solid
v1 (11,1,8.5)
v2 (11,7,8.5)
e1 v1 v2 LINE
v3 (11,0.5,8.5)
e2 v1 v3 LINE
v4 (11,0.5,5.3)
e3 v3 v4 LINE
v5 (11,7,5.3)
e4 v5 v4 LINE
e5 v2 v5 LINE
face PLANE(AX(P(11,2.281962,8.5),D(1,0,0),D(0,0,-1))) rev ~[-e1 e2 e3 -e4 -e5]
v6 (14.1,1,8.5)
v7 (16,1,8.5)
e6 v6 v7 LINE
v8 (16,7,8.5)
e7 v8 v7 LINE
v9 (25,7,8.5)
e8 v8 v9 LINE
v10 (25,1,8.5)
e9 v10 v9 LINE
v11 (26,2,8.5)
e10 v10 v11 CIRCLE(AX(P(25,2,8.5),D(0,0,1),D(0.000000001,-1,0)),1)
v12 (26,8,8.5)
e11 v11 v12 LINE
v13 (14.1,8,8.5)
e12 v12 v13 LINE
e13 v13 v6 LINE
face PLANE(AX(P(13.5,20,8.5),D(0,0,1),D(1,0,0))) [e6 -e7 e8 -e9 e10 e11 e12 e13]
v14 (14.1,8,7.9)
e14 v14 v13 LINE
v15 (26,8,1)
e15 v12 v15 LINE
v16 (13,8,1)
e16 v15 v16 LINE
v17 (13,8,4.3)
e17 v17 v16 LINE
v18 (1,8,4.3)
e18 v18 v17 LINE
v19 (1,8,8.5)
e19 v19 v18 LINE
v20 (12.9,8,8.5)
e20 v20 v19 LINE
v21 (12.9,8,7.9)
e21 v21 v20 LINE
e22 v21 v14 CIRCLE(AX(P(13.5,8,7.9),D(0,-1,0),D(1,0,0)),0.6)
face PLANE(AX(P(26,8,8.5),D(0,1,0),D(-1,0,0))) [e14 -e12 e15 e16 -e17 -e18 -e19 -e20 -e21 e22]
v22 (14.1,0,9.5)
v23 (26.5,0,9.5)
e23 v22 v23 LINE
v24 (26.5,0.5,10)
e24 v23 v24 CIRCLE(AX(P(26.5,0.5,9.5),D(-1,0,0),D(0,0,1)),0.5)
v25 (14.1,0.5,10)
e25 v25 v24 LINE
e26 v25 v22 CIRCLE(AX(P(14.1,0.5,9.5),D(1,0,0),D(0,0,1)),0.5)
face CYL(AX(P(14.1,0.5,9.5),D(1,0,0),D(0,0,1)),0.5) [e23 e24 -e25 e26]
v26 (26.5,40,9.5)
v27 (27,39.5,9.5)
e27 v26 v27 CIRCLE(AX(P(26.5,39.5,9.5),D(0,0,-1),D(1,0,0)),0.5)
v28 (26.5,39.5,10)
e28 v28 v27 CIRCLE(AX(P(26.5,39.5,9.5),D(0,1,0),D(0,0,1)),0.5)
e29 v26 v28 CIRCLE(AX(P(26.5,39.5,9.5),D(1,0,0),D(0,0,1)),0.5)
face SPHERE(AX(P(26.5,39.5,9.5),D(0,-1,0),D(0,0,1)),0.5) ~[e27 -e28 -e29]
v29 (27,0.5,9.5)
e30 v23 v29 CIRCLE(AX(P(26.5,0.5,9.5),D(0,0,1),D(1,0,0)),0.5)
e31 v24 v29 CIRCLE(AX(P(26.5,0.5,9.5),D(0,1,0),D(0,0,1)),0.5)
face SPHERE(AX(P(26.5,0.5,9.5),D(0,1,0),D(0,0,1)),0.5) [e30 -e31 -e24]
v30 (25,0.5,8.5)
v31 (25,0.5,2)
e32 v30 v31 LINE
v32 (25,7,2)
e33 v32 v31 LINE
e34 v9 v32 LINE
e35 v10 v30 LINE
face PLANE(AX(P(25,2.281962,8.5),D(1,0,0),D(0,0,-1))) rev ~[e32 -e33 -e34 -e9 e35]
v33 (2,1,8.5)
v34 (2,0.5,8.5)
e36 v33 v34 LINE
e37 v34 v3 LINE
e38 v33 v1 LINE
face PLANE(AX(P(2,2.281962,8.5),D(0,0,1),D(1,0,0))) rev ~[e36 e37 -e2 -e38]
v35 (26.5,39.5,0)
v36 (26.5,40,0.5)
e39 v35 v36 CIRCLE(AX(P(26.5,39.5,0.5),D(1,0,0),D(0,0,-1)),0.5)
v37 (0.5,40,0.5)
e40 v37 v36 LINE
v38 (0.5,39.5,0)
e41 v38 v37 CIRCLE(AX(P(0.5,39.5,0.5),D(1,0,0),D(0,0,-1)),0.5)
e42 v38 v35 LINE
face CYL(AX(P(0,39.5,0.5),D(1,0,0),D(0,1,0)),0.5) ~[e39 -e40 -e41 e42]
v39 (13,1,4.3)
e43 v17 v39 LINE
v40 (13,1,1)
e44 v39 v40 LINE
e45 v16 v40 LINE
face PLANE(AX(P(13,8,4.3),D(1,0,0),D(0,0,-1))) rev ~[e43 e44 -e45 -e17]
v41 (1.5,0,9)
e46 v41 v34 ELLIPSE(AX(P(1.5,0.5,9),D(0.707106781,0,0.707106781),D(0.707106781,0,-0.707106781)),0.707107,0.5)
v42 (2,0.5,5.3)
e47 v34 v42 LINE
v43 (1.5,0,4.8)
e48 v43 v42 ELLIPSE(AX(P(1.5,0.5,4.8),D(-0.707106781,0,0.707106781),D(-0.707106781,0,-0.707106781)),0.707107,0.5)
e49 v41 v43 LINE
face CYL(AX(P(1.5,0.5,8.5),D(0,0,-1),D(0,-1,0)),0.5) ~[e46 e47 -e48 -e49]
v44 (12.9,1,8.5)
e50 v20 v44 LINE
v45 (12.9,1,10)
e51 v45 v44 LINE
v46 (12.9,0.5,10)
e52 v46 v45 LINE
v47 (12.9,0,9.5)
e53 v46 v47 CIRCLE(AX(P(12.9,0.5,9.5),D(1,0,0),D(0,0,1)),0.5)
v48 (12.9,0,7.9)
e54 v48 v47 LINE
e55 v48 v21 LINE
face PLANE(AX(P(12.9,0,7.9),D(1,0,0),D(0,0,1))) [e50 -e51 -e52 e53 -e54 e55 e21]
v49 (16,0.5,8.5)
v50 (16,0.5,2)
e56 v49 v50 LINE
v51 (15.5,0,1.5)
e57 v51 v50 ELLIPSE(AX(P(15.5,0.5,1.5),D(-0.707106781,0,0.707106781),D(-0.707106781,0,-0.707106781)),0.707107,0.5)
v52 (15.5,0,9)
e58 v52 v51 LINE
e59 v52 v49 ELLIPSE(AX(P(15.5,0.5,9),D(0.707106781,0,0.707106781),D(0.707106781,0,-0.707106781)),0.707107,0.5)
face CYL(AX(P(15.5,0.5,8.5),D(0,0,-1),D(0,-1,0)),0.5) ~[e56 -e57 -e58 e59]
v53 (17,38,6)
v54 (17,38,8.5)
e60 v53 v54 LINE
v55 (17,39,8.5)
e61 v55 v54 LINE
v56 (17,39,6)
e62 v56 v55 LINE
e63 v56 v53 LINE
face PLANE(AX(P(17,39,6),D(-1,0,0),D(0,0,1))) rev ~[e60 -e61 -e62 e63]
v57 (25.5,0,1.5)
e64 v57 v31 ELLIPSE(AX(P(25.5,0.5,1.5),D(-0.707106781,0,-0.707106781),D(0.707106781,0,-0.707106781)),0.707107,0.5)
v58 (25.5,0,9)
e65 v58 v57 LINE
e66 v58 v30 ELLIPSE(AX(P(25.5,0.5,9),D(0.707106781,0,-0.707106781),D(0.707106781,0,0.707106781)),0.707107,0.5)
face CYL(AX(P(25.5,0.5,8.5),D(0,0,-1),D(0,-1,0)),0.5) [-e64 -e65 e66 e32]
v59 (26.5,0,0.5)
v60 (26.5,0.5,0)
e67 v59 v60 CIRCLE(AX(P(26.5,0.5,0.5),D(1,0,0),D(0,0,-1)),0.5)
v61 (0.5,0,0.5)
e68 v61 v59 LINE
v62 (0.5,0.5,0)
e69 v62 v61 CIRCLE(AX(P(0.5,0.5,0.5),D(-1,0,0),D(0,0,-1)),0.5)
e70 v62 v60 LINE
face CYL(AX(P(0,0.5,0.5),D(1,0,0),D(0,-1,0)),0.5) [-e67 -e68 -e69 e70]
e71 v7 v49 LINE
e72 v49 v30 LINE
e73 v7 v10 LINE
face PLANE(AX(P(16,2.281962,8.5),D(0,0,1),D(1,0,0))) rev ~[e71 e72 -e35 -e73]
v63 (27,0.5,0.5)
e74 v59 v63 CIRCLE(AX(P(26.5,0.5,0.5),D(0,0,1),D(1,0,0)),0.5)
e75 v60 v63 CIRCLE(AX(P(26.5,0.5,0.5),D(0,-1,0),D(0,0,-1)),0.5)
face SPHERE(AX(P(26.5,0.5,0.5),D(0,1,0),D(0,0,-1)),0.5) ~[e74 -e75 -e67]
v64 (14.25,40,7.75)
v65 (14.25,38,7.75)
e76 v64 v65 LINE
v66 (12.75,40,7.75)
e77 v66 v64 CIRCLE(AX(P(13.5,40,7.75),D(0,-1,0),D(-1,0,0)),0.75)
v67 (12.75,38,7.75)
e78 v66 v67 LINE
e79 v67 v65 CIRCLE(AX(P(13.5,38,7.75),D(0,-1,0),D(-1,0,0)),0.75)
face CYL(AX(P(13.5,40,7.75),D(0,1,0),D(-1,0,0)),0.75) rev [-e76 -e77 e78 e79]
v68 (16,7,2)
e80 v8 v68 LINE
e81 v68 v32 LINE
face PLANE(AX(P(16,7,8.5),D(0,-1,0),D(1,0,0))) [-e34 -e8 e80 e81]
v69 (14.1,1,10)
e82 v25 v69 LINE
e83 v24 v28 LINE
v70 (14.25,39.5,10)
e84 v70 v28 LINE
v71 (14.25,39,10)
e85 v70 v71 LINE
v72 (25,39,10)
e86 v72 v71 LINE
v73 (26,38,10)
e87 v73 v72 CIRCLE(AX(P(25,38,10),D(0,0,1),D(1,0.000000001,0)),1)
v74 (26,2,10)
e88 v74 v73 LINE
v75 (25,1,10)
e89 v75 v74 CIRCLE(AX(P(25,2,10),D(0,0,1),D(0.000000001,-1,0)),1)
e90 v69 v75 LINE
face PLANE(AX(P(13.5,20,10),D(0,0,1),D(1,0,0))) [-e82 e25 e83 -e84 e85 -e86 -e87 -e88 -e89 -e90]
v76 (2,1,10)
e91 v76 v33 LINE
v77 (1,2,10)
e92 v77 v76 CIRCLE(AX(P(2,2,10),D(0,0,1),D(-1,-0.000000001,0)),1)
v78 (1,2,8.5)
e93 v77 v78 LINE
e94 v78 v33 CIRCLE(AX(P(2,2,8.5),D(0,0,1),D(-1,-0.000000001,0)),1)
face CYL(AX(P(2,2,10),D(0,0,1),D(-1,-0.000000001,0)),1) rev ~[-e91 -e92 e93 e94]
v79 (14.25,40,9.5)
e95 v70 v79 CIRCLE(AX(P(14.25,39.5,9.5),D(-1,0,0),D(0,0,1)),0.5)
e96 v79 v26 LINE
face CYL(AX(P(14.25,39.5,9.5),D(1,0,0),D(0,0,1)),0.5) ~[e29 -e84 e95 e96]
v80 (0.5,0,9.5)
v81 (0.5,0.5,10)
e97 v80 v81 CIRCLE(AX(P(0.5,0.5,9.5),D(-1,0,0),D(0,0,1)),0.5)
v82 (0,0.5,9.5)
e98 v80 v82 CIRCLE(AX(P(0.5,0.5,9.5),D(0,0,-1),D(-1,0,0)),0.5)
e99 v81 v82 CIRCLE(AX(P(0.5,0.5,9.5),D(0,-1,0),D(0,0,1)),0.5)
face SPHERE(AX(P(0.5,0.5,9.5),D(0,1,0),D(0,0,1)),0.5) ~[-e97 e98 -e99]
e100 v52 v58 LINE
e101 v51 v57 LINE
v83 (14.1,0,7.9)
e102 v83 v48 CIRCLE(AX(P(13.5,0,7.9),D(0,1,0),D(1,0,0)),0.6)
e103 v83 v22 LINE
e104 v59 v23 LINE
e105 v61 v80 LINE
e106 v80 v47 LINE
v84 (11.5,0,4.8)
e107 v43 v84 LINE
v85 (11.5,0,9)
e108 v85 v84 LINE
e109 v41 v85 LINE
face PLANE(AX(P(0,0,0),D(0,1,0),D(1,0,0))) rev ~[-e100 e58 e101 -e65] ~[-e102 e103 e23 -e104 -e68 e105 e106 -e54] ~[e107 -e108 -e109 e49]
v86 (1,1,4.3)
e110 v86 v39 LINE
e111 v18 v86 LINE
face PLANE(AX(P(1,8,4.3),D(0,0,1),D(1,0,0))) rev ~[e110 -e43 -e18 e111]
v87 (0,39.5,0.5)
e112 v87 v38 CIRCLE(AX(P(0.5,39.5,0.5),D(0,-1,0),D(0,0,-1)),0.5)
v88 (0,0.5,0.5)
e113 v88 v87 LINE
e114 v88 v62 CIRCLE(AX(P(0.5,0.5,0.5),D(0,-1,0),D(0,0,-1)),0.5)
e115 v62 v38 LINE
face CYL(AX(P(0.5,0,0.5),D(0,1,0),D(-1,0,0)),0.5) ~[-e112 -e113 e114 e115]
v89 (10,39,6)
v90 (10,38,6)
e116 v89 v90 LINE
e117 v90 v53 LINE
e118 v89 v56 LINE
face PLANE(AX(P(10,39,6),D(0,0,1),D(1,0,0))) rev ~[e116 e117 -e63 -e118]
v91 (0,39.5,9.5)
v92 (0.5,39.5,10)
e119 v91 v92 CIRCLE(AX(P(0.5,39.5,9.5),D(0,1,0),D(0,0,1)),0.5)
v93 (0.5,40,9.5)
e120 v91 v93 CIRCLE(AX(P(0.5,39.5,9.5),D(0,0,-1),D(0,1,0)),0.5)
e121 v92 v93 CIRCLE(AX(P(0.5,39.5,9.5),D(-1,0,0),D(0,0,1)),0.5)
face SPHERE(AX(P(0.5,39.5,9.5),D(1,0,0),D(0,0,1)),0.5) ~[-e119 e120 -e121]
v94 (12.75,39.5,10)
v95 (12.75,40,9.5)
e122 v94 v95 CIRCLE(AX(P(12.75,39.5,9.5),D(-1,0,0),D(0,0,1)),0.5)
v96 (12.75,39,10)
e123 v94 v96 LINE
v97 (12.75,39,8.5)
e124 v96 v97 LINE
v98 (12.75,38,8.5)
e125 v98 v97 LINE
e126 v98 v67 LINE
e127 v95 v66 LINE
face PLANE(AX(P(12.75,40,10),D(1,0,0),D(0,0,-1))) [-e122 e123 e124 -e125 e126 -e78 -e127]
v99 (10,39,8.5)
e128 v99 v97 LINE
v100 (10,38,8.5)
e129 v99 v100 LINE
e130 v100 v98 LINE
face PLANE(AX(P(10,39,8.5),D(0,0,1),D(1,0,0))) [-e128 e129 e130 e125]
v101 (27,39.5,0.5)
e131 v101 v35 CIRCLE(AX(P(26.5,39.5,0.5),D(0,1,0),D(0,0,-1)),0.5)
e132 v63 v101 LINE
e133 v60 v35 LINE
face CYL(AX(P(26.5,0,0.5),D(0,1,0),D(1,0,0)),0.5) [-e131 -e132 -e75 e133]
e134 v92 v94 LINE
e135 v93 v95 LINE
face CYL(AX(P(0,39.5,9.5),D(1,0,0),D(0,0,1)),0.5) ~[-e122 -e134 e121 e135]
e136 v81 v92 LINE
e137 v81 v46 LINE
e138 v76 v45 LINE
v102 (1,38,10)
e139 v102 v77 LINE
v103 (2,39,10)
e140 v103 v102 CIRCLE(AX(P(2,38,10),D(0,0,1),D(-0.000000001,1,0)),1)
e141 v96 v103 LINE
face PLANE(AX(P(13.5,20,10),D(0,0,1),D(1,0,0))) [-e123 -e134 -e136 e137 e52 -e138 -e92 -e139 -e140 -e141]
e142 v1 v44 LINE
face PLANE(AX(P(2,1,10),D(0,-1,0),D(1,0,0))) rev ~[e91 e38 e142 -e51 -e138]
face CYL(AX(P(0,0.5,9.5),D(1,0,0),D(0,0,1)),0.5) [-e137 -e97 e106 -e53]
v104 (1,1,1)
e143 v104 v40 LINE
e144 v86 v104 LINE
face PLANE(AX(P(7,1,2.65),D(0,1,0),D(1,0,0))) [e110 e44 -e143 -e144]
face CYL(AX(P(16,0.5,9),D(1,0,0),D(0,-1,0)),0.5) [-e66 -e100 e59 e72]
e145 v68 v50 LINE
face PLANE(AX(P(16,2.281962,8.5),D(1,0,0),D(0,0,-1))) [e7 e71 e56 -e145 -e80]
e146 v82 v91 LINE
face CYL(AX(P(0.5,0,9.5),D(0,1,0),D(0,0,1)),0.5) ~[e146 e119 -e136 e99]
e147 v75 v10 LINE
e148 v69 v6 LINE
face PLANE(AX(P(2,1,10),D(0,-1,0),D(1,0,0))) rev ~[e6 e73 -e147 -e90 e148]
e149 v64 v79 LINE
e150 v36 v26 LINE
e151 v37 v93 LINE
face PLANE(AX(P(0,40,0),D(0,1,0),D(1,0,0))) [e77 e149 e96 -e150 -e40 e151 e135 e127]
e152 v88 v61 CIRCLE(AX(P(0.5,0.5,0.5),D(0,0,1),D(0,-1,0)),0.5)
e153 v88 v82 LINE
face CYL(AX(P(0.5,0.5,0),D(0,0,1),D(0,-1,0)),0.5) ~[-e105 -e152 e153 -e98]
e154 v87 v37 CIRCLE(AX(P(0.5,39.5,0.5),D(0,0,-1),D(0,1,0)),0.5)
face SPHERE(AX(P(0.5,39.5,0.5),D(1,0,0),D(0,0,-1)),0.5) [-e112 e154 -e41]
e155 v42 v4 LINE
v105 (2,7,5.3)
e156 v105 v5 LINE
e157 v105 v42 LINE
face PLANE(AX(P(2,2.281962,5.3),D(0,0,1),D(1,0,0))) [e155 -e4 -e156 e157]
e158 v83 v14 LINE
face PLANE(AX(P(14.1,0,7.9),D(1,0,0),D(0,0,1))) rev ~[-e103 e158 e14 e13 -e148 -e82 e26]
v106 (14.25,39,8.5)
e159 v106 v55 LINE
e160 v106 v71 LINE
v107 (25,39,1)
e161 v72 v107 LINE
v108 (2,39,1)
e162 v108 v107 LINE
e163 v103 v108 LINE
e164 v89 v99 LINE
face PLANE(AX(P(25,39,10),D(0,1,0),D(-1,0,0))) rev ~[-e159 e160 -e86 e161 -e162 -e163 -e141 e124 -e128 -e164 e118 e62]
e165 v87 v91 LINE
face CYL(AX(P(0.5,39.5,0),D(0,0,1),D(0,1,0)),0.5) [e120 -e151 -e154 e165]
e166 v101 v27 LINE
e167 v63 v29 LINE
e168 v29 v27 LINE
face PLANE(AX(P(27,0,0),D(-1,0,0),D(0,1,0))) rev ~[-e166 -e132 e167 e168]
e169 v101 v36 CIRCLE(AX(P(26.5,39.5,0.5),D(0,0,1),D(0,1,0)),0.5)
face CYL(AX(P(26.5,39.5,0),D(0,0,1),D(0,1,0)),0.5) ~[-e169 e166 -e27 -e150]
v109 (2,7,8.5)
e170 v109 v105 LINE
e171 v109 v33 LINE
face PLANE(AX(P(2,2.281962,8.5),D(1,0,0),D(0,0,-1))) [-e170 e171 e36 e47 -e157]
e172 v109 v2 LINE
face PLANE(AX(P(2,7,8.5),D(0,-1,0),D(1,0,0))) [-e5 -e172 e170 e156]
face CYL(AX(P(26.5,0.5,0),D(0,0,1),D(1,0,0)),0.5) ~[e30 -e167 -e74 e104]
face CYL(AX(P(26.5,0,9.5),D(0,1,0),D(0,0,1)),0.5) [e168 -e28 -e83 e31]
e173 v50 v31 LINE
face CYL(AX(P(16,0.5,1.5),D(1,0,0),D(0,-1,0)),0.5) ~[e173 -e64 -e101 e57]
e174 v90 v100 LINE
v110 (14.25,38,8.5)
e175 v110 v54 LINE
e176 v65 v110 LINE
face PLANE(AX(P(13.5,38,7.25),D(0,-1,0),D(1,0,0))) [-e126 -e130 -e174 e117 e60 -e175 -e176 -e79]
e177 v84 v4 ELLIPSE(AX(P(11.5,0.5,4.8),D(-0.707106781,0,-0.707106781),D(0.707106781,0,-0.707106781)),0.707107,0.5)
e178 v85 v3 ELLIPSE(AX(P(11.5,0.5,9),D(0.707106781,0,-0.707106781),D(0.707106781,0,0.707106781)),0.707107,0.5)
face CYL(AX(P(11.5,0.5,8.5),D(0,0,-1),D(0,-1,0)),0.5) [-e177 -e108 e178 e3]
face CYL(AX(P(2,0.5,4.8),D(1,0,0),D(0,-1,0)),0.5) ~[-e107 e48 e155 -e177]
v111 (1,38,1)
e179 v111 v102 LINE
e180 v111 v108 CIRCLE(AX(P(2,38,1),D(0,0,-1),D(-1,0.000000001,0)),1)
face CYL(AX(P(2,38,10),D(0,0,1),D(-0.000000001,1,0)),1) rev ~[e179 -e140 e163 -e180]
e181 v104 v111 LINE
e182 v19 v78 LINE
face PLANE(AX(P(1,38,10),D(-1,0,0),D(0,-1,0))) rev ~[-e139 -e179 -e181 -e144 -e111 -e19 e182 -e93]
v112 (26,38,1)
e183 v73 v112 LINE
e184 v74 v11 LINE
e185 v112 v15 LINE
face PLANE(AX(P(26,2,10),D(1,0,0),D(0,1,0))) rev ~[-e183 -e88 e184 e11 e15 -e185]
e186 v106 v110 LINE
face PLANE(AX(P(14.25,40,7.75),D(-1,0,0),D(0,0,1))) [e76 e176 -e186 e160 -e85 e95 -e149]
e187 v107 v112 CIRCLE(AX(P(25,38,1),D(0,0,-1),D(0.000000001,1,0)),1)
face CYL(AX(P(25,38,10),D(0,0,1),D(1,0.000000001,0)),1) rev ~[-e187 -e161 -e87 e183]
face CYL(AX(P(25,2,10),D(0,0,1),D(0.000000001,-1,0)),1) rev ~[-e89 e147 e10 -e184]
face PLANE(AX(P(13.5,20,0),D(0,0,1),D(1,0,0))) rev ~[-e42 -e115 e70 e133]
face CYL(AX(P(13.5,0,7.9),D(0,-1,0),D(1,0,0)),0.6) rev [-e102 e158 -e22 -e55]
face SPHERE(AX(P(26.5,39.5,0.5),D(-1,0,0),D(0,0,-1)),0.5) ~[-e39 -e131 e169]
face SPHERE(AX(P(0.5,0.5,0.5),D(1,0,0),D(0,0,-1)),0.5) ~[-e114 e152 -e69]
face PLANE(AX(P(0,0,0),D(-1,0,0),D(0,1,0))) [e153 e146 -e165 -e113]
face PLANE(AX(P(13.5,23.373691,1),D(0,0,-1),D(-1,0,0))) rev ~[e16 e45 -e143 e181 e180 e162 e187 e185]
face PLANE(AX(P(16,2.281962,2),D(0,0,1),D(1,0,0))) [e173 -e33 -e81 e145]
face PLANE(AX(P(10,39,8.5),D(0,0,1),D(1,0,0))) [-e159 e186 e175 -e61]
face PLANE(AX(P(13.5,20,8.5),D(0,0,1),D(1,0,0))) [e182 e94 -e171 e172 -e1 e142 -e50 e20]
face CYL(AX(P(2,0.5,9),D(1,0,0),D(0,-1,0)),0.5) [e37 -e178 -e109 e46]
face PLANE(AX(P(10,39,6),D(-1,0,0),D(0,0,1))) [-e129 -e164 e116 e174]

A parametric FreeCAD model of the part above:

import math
import FreeCAD as App
import Part
import Sketcher


def edges_at(feature, points):
    """Names of the edges that pass closest to the given points."""
    edges = feature.Shape.Edges
    near = lambda p: min(range(len(edges)), key=lambda i: edges[i].distToShape(Part.Vertex(*p))[0])
    return sorted({f"Edge{near(p) + 1}" for p in points})

doc = App.newDocument("Part")
params = doc.addObject("Spreadsheet::Sheet", "Params")
for row, (alias, value) in enumerate([
    ("sketch1_width", "27 mm"),
    ("sketch1_height", "40 mm"),
    ("pad1_length", "10 mm"),
    ("sketch2_radius", "1 mm"),
    ("sketch2_width", "23 mm"),
    ("sketch2_height", "36 mm"),
    ("pocket1_length", "1.5 mm"),
    ("sketch3_radius", "1 mm"),
    ("sketch3_width", "23 mm"),
    ("sketch3_height", "30 mm"),
    ("pocket2_length", "7.5 mm"),
    ("sketch4_width", "9 mm"),
    ("pocket3_length", "6.5 mm"),
    ("sketch5_width", "9 mm"),
    ("pocket4_length", "3.2 mm"),
    ("sketch6_width", "9 mm"),
    ("sketch6_height", "3.2 mm"),
    ("sketch6_height2", "6.5 mm"),
    ("sketch7_radius", "0.6 mm"),
    ("sketch8_width", "1.2 mm"),
    ("sketch8_height", "2.1 mm"),
    ("pocket7_length", "8 mm"),
    ("sketch9_width", "7 mm"),
    ("sketch9_height", "2.5 mm"),
    ("pad2_length", "1 mm"),
    ("sketch10_width", "7 mm"),
    ("sketch10_height", "2.5 mm"),
    ("pad3_length", "1 mm"),
    ("sketch11_radius", "0.75 mm"),
    ("sketch11_height", "2.25 mm"),
    ("pocket8_length", "2 mm"),
    ("fillet_radius", "0.5 mm"),
    ("sketch12_width", "12 mm"),
    ("sketch12_height", "3.3 mm"),
    ("pocket9_length", "7 mm"),
], start=1):
    params.set(f"A{row}", alias)
    params.set(f"B{row}", "=" + value)
    params.setAlias(f"B{row}", alias)

body = doc.addObject("PartDesign::Body", "Body")

sketch1 = body.newObject("Sketcher::SketchObject", "Sketch")
sketch1.AttachmentSupport = (doc.getObject("XY_Plane"), [""])
sketch1.MapMode = "FlatFace"
sketch1.addGeometry([
    Part.LineSegment(App.Vector(0, 40, 0), App.Vector(0, 0, 0)),
    Part.LineSegment(App.Vector(0, 0, 0), App.Vector(27, 0, 0)),
    Part.LineSegment(App.Vector(27, 0, 0), App.Vector(27, 40, 0)),
    Part.LineSegment(App.Vector(27, 40, 0), App.Vector(0, 40, 0)),
], False)
sketch1.addConstraint([
    Sketcher.Constraint("Coincident", 0, 2, 1, 1),
    Sketcher.Constraint("Coincident", 1, 2, 2, 1),
    Sketcher.Constraint("Coincident", 2, 2, 3, 1),
    Sketcher.Constraint("Coincident", 3, 2, 0, 1),
    Sketcher.Constraint("Vertical", 0),
    Sketcher.Constraint("Horizontal", 1),
    Sketcher.Constraint("Vertical", 2),
    Sketcher.Constraint("Horizontal", 3),
    Sketcher.Constraint("Coincident", 0, 2, -1, 1),
    Sketcher.Constraint("DistanceX", 1, 1, 1, 2, 27.0),
    Sketcher.Constraint("DistanceY", 0, 2, 0, 1, 40.0),
])
sketch1.setExpression("Constraints[9]", "Params.sketch1_width")
sketch1.setExpression("Constraints[10]", "Params.sketch1_height")
pad1 = body.newObject("PartDesign::Pad", "Pad")
pad1.Profile = sketch1
pad1.setExpression("Length", "Params.pad1_length")

sketch2 = body.newObject("Sketcher::SketchObject", "Sketch001")
sketch2.AttachmentSupport = (doc.getObject("XY_Plane"), [""])
sketch2.MapMode = "FlatFace"
sketch2.AttachmentOffset = App.Placement(App.Vector(0, 0, 10), App.Rotation())
sketch2.addGeometry([
    Part.LineSegment(App.Vector(1, 38, 0), App.Vector(1, 2, 0)),
    Part.ArcOfCircle(Part.Circle(App.Vector(2, 2, 0), App.Vector(0, 0, 1), 1), math.radians(-180), math.radians(-90)),
    Part.LineSegment(App.Vector(2, 1, 0), App.Vector(25, 1, 0)),
    Part.ArcOfCircle(Part.Circle(App.Vector(25, 2, 0), App.Vector(0, 0, 1), 1), math.radians(-90), math.radians(0)),
    Part.LineSegment(App.Vector(26, 2, 0), App.Vector(26, 38, 0)),
    Part.ArcOfCircle(Part.Circle(App.Vector(25, 38, 0), App.Vector(0, 0, 1), 1), math.radians(0), math.radians(90)),
    Part.LineSegment(App.Vector(25, 39, 0), App.Vector(2, 39, 0)),
    Part.ArcOfCircle(Part.Circle(App.Vector(2, 38, 0), App.Vector(0, 0, 1), 1), math.radians(90), math.radians(180)),
], False)
sketch2.addConstraint([
    Sketcher.Constraint("Tangent", 0, 2, 1, 1),
    Sketcher.Constraint("Tangent", 1, 2, 2, 1),
    Sketcher.Constraint("Tangent", 2, 2, 3, 1),
    Sketcher.Constraint("Tangent", 3, 2, 4, 1),
    Sketcher.Constraint("Tangent", 4, 2, 5, 1),
    Sketcher.Constraint("Tangent", 5, 2, 6, 1),
    Sketcher.Constraint("Tangent", 6, 2, 7, 1),
    Sketcher.Constraint("Tangent", 7, 2, 0, 1),
    Sketcher.Constraint("Vertical", 0),
    Sketcher.Constraint("Horizontal", 2),
    Sketcher.Constraint("Vertical", 4),
    Sketcher.Constraint("Horizontal", 6),
    Sketcher.Constraint("Equal", 1, 3),
    Sketcher.Constraint("Equal", 3, 5),
    Sketcher.Constraint("Equal", 5, 7),
    Sketcher.Constraint("Radius", 1, 1.0),
    Sketcher.Constraint("DistanceX", 2, 1, 2, 2, 23.0),
    Sketcher.Constraint("DistanceY", 0, 2, 0, 1, 36.0),
    Sketcher.Constraint("DistanceX", -1, 1, 1, 3, 2.0),
    Sketcher.Constraint("DistanceY", -1, 1, 1, 3, 2.0),
])
sketch2.setExpression("Constraints[15]", "Params.sketch2_radius")
sketch2.setExpression("Constraints[16]", "Params.sketch2_width")
sketch2.setExpression("Constraints[17]", "Params.sketch2_height")
pocket1 = body.newObject("PartDesign::Pocket", "Pocket")
pocket1.Profile = sketch2
pocket1.setExpression("Length", "Params.pocket1_length")

sketch3 = body.newObject("Sketcher::SketchObject", "Sketch002")
sketch3.AttachmentSupport = (doc.getObject("XY_Plane"), [""])
sketch3.MapMode = "FlatFace"
sketch3.AttachmentOffset = App.Placement(App.Vector(0, 0, 8.5), App.Rotation())
sketch3.addGeometry([
    Part.LineSegment(App.Vector(25, 39, 0), App.Vector(2, 39, 0)),
    Part.ArcOfCircle(Part.Circle(App.Vector(2, 38, 0), App.Vector(0, 0, 1), 1), math.radians(90), math.radians(180)),
    Part.LineSegment(App.Vector(1, 38, 0), App.Vector(1, 8, 0)),
    Part.LineSegment(App.Vector(1, 8, 0), App.Vector(26, 8, 0)),
    Part.LineSegment(App.Vector(26, 8, 0), App.Vector(26, 38, 0)),
    Part.ArcOfCircle(Part.Circle(App.Vector(25, 38, 0), App.Vector(0, 0, 1), 1), math.radians(0), math.radians(90)),
], False)
sketch3.addConstraint([
    Sketcher.Constraint("Tangent", 0, 2, 1, 1),
    Sketcher.Constraint("Tangent", 1, 2, 2, 1),
    Sketcher.Constraint("Coincident", 2, 2, 3, 1),
    Sketcher.Constraint("Coincident", 3, 2, 4, 1),
    Sketcher.Constraint("Tangent", 4, 2, 5, 1),
    Sketcher.Constraint("Tangent", 5, 2, 0, 1),
    Sketcher.Constraint("Horizontal", 0),
    Sketcher.Constraint("Vertical", 2),
    Sketcher.Constraint("Horizontal", 3),
    Sketcher.Constraint("Vertical", 4),
    Sketcher.Constraint("Equal", 1, 5),
    Sketcher.Constraint("Radius", 1, 1.0),
    Sketcher.Constraint("DistanceX", 0, 2, 0, 1, 23.0),
    Sketcher.Constraint("DistanceY", 2, 2, 2, 1, 30.0),
    Sketcher.Constraint("DistanceX", -1, 1, 1, 3, 2.0),
    Sketcher.Constraint("DistanceY", -1, 1, 1, 3, 38.0),
])
sketch3.setExpression("Constraints[11]", "Params.sketch3_radius")
sketch3.setExpression("Constraints[12]", "Params.sketch3_width")
sketch3.setExpression("Constraints[13]", "Params.sketch3_height")
pocket2 = body.newObject("PartDesign::Pocket", "Pocket001")
pocket2.Profile = sketch3
pocket2.setExpression("Length", "Params.pocket2_length")

sketch4 = body.newObject("Sketcher::SketchObject", "Sketch003")
sketch4.AttachmentSupport = (doc.getObject("XY_Plane"), [""])
sketch4.MapMode = "FlatFace"
sketch4.AttachmentOffset = App.Placement(App.Vector(0, 0, 8.5), App.Rotation())
sketch4.addGeometry([
    Part.LineSegment(App.Vector(16, 7, 0), App.Vector(16, 2.3, 0)),
    Part.LineSegment(App.Vector(16, 2.3, 0), App.Vector(25, 2.3, 0)),
    Part.LineSegment(App.Vector(25, 2.3, 0), App.Vector(25, 7, 0)),
    Part.LineSegment(App.Vector(25, 7, 0), App.Vector(16, 7, 0)),
], False)
sketch4.addConstraint([
    Sketcher.Constraint("Coincident", 0, 2, 1, 1),
    Sketcher.Constraint("Coincident", 1, 2, 2, 1),
    Sketcher.Constraint("Coincident", 2, 2, 3, 1),
    Sketcher.Constraint("Coincident", 3, 2, 0, 1),
    Sketcher.Constraint("Vertical", 0),
    Sketcher.Constraint("Horizontal", 1),
    Sketcher.Constraint("Vertical", 2),
    Sketcher.Constraint("Horizontal", 3),
    Sketcher.Constraint("DistanceX", 1, 1, 1, 2, 9.0),
    Sketcher.Constraint("DistanceX", -1, 1, 0, 2, 16.0),
    Sketcher.Constraint("DistanceY", -1, 1, 2, 2, 7.0),
    Sketcher.Constraint("DistanceY", 0, 2, 0, 1, 4.718038),
])
sketch4.setExpression("Constraints[8]", "Params.sketch4_width")
pocket3 = body.newObject("PartDesign::Pocket", "Pocket002")
pocket3.Profile = sketch4
pocket3.setExpression("Length", "Params.pocket3_length")

sketch5 = body.newObject("Sketcher::SketchObject", "Sketch004")
sketch5.AttachmentSupport = (doc.getObject("XY_Plane"), [""])
sketch5.MapMode = "FlatFace"
sketch5.AttachmentOffset = App.Placement(App.Vector(0, 0, 8.5), App.Rotation())
sketch5.addGeometry([
    Part.LineSegment(App.Vector(2, 7, 0), App.Vector(2, 2.3, 0)),
    Part.LineSegment(App.Vector(2, 2.3, 0), App.Vector(11, 2.3, 0)),
    Part.LineSegment(App.Vector(11, 2.3, 0), App.Vector(11, 7, 0)),
    Part.LineSegment(App.Vector(11, 7, 0), App.Vector(2, 7, 0)),
], False)
sketch5.addConstraint([
    Sketcher.Constraint("Coincident", 0, 2, 1, 1),
    Sketcher.Constraint("Coincident", 1, 2, 2, 1),
    Sketcher.Constraint("Coincident", 2, 2, 3, 1),
    Sketcher.Constraint("Coincident", 3, 2, 0, 1),
    Sketcher.Constraint("Vertical", 0),
    Sketcher.Constraint("Horizontal", 1),
    Sketcher.Constraint("Vertical", 2),
    Sketcher.Constraint("Horizontal", 3),
    Sketcher.Constraint("DistanceX", 1, 1, 1, 2, 9.0),
    Sketcher.Constraint("DistanceX", -1, 1, 0, 2, 2.0),
    Sketcher.Constraint("DistanceY", -1, 1, 2, 2, 7.0),
    Sketcher.Constraint("DistanceY", 0, 2, 0, 1, 4.718038),
])
sketch5.setExpression("Constraints[8]", "Params.sketch5_width")
pocket4 = body.newObject("PartDesign::Pocket", "Pocket003")
pocket4.Profile = sketch5
pocket4.setExpression("Length", "Params.pocket4_length")

sketch6 = body.newObject("Sketcher::SketchObject", "Sketch005")
sketch6.AttachmentSupport = (doc.getObject("XZ_Plane"), [""])
sketch6.MapMode = "FlatFace"
sketch6.AttachmentOffset = App.Placement(App.Vector(0, 0, -2.281962), App.Rotation())
sketch6.addGeometry([
    Part.LineSegment(App.Vector(2, 5.3, 0), App.Vector(2, 8.5, 0)),
    Part.LineSegment(App.Vector(2, 8.5, 0), App.Vector(11, 8.5, 0)),
    Part.LineSegment(App.Vector(11, 8.5, 0), App.Vector(11, 5.3, 0)),
    Part.LineSegment(App.Vector(11, 5.3, 0), App.Vector(2, 5.3, 0)),
    Part.LineSegment(App.Vector(16, 2, 0), App.Vector(16, 8.5, 0)),
    Part.LineSegment(App.Vector(16, 8.5, 0), App.Vector(25, 8.5, 0)),
    Part.LineSegment(App.Vector(25, 8.5, 0), App.Vector(25, 2, 0)),
    Part.LineSegment(App.Vector(25, 2, 0), App.Vector(16, 2, 0)),
], False)
sketch6.addConstraint([
    Sketcher.Constraint("Coincident", 0, 2, 1, 1),
    Sketcher.Constraint("Coincident", 1, 2, 2, 1),
    Sketcher.Constraint("Coincident", 2, 2, 3, 1),
    Sketcher.Constraint("Coincident", 3, 2, 0, 1),
    Sketcher.Constraint("Coincident", 4, 2, 5, 1),
    Sketcher.Constraint("Coincident", 5, 2, 6, 1),
    Sketcher.Constraint("Coincident", 6, 2, 7, 1),
    Sketcher.Constraint("Coincident", 7, 2, 4, 1),
    Sketcher.Constraint("Vertical", 0),
    Sketcher.Constraint("Horizontal", 1),
    Sketcher.Constraint("Vertical", 2),
    Sketcher.Constraint("Horizontal", 3),
    Sketcher.Constraint("Vertical", 4),
    Sketcher.Constraint("Horizontal", 5),
    Sketcher.Constraint("Vertical", 6),
    Sketcher.Constraint("Horizontal", 7),
    Sketcher.Constraint("Horizontal", 1, 2, 4, 2),
    Sketcher.Constraint("Equal", 3, 5),
    Sketcher.Constraint("DistanceX", 1, 1, 1, 2, 9.0),
    Sketcher.Constraint("DistanceY", 0, 1, 0, 2, 3.2),
    Sketcher.Constraint("DistanceY", 4, 1, 4, 2, 6.5),
    Sketcher.Constraint("DistanceX", -1, 1, 0, 2, 2.0),
    Sketcher.Constraint("DistanceX", -1, 1, 4, 2, 16.0),
    Sketcher.Constraint("DistanceY", -1, 1, 6, 2, 2.0),
])
sketch6.setExpression("Constraints[18]", "Params.sketch6_width")
sketch6.setExpression("Constraints[19]", "Params.sketch6_height")
sketch6.setExpression("Constraints[20]", "Params.sketch6_height2")
pocket5 = body.newObject("PartDesign::Pocket", "Pocket004")
pocket5.Profile = sketch6
pocket5.Type = "ThroughAll"
pocket5.Reversed = True

sketch7 = body.newObject("Sketcher::SketchObject", "Sketch006")
sketch7.AttachmentSupport = (doc.getObject("XZ_Plane"), [""])
sketch7.MapMode = "FlatFace"
sketch7.addGeometry([
    Part.LineSegment(App.Vector(14.1, 7.9, 0), App.Vector(12.9, 7.9, 0)),
    Part.ArcOfCircle(Part.Circle(App.Vector(13.5, 7.9, 0), App.Vector(0, 0, 1), 0.6), math.radians(180), math.radians(360)),
], False)
sketch7.addConstraint([
    Sketcher.Constraint("Coincident", 0, 1, 1, 2),
    Sketcher.Constraint("Coincident", 1, 1, 0, 2),
    Sketcher.Constraint("Horizontal", 0),
    Sketcher.Constraint("Horizontal", 1, 3, 0, 1),
    Sketcher.Constraint("Radius", 1, 0.6),
    Sketcher.Constraint("DistanceX", -1, 1, 1, 3, 13.5),
    Sketcher.Constraint("DistanceY", -1, 1, 1, 3, 7.9),
])
sketch7.setExpression("Constraints[4]", "Params.sketch7_radius")
pocket6 = body.newObject("PartDesign::Pocket", "Pocket005")
pocket6.Profile = sketch7
pocket6.Type = "UpToFirst"

sketch8 = body.newObject("Sketcher::SketchObject", "Sketch007")
sketch8.AttachmentSupport = (doc.getObject("XZ_Plane"), [""])
sketch8.MapMode = "FlatFace"
sketch8.addGeometry([
    Part.LineSegment(App.Vector(12.9, 10, 0), App.Vector(12.9, 7.9, 0)),
    Part.LineSegment(App.Vector(12.9, 7.9, 0), App.Vector(14.1, 7.9, 0)),
    Part.LineSegment(App.Vector(14.1, 7.9, 0), App.Vector(14.1, 10, 0)),
    Part.LineSegment(App.Vector(14.1, 10, 0), App.Vector(12.9, 10, 0)),
], False)
sketch8.addConstraint([
    Sketcher.Constraint("Coincident", 0, 2, 1, 1),
    Sketcher.Constraint("Coincident", 1, 2, 2, 1),
    Sketcher.Constraint("Coincident", 2, 2, 3, 1),
    Sketcher.Constraint("Coincident", 3, 2, 0, 1),
    Sketcher.Constraint("Vertical", 0),
    Sketcher.Constraint("Horizontal", 1),
    Sketcher.Constraint("Vertical", 2),
    Sketcher.Constraint("Horizontal", 3),
    Sketcher.Constraint("DistanceX", 1, 1, 1, 2, 1.2),
    Sketcher.Constraint("DistanceY", 0, 2, 0, 1, 2.1),
    Sketcher.Constraint("DistanceY", -1, 1, 2, 2, 10.0),
    Sketcher.Constraint("DistanceX", -1, 1, 0, 2, 12.9),
])
sketch8.setExpression("Constraints[8]", "Params.sketch8_width")
sketch8.setExpression("Constraints[9]", "Params.sketch8_height")
pocket7 = body.newObject("PartDesign::Pocket", "Pocket006")
pocket7.Profile = sketch8
pocket7.setExpression("Length", "Params.pocket7_length")

sketch9 = body.newObject("Sketcher::SketchObject", "Sketch008")
sketch9.AttachmentSupport = (doc.getObject("XZ_Plane"), [""])
sketch9.MapMode = "FlatFace"
sketch9.AttachmentOffset = App.Placement(App.Vector(0, 0, -39), App.Rotation())
sketch9.addGeometry([
    Part.LineSegment(App.Vector(10, 8.5, 0), App.Vector(10, 6, 0)),
    Part.LineSegment(App.Vector(10, 6, 0), App.Vector(17, 6, 0)),
    Part.LineSegment(App.Vector(17, 6, 0), App.Vector(17, 8.5, 0)),
    Part.LineSegment(App.Vector(17, 8.5, 0), App.Vector(10, 8.5, 0)),
], False)
sketch9.addConstraint([
    Sketcher.Constraint("Coincident", 0, 2, 1, 1),
    Sketcher.Constraint("Coincident", 1, 2, 2, 1),
    Sketcher.Constraint("Coincident", 2, 2, 3, 1),
    Sketcher.Constraint("Coincident", 3, 2, 0, 1),
    Sketcher.Constraint("Vertical", 0),
    Sketcher.Constraint("Horizontal", 1),
    Sketcher.Constraint("Vertical", 2),
    Sketcher.Constraint("Horizontal", 3),
    Sketcher.Constraint("DistanceX", 1, 1, 1, 2, 7.0),
    Sketcher.Constraint("DistanceY", 0, 2, 0, 1, 2.5),
    Sketcher.Constraint("DistanceX", -1, 1, 0, 2, 10.0),
    Sketcher.Constraint("DistanceY", -1, 1, 0, 2, 6.0),
])
sketch9.setExpression("Constraints[8]", "Params.sketch9_width")
sketch9.setExpression("Constraints[9]", "Params.sketch9_height")
pad2 = body.newObject("PartDesign::Pad", "Pad001")
pad2.Profile = sketch9
pad2.setExpression("Length", "Params.pad2_length")

sketch10 = body.newObject("Sketcher::SketchObject", "Sketch009")
sketch10.AttachmentSupport = (doc.getObject("XZ_Plane"), [""])
sketch10.MapMode = "FlatFace"
sketch10.AttachmentOffset = App.Placement(App.Vector(0, 0, -39), App.Rotation())
sketch10.addGeometry([
    Part.LineSegment(App.Vector(10, 8.5, 0), App.Vector(10, 6, 0)),
    Part.LineSegment(App.Vector(10, 6, 0), App.Vector(17, 6, 0)),
    Part.LineSegment(App.Vector(17, 6, 0), App.Vector(17, 8.5, 0)),
    Part.LineSegment(App.Vector(17, 8.5, 0), App.Vector(10, 8.5, 0)),
], False)
sketch10.addConstraint([
    Sketcher.Constraint("Coincident", 0, 2, 1, 1),
    Sketcher.Constraint("Coincident", 1, 2, 2, 1),
    Sketcher.Constraint("Coincident", 2, 2, 3, 1),
    Sketcher.Constraint("Coincident", 3, 2, 0, 1),
    Sketcher.Constraint("Vertical", 0),
    Sketcher.Constraint("Horizontal", 1),
    Sketcher.Constraint("Vertical", 2),
    Sketcher.Constraint("Horizontal", 3),
    Sketcher.Constraint("DistanceX", 1, 1, 1, 2, 7.0),
    Sketcher.Constraint("DistanceY", 0, 2, 0, 1, 2.5),
    Sketcher.Constraint("DistanceX", -1, 1, 0, 2, 10.0),
    Sketcher.Constraint("DistanceY", -1, 1, 0, 2, 6.0),
])
sketch10.setExpression("Constraints[8]", "Params.sketch10_width")
sketch10.setExpression("Constraints[9]", "Params.sketch10_height")
pad3 = body.newObject("PartDesign::Pad", "Pad002")
pad3.Profile = sketch10
pad3.setExpression("Length", "Params.pad3_length")

sketch11 = body.newObject("Sketcher::SketchObject", "Sketch010")
sketch11.AttachmentSupport = (doc.getObject("XZ_Plane"), [""])
sketch11.MapMode = "FlatFace"
sketch11.AttachmentOffset = App.Placement(App.Vector(0, 0, -40), App.Rotation())
sketch11.addGeometry([
    Part.LineSegment(App.Vector(14.2, 10, 0), App.Vector(14.2, 7.8, 0)),
    Part.ArcOfCircle(Part.Circle(App.Vector(13.5, 7.8, 0), App.Vector(0, 0, 1), 0.8), math.radians(180), math.radians(360)),
    Part.LineSegment(App.Vector(12.8, 7.8, 0), App.Vector(12.8, 10, 0)),
    Part.LineSegment(App.Vector(12.8, 10, 0), App.Vector(14.2, 10, 0)),
], False)
sketch11.addConstraint([
    Sketcher.Constraint("Tangent", 0, 2, 1, 2),
    Sketcher.Constraint("Tangent", 1, 1, 2, 1),
    Sketcher.Constraint("Coincident", 2, 2, 3, 1),
    Sketcher.Constraint("Coincident", 3, 2, 0, 1),
    Sketcher.Constraint("Vertical", 0),
    Sketcher.Constraint("Vertical", 2),
    Sketcher.Constraint("Horizontal", 3),
    Sketcher.Constraint("Radius", 1, 0.75),
    Sketcher.Constraint("DistanceY", -1, 1, 2, 2, 10.0),
    Sketcher.Constraint("DistanceY", 0, 2, 0, 1, 2.25),
    Sketcher.Constraint("DistanceX", -1, 1, 1, 3, 13.5),
])
sketch11.setExpression("Constraints[7]", "Params.sketch11_radius")
sketch11.setExpression("Constraints[9]", "Params.sketch11_height")
pocket8 = body.newObject("PartDesign::Pocket", "Pocket007")
pocket8.Profile = sketch11
pocket8.setExpression("Length", "Params.pocket8_length")
pocket8.Reversed = True
doc.recompute()

fillet = body.newObject("PartDesign::Fillet", "Fillet")
fillet.Base = (pocket8, edges_at(pocket8, [
    (27, 20, 10),
    (20.55, 0, 10),
    (20.625, 40, 10),
    (6.375, 40, 10),
    (0, 20, 10),
    (13.5, 40, 0),
    (27, 20, 0),
    (13.5, 0, 0),
    (0, 20, 0),
    (6.45, 0, 10),
    (0, 40, 5),
    (27, 40, 5),
    (27, 0, 5),
    (0, 0, 5),
    (6.5, 0, 8.5),
    (11, 0, 6.9),
    (2, 0, 6.9),
    (6.5, 0, 5.3),
    (20.5, 0, 8.5),
    (25, 0, 5.25),
    (16, 0, 5.25),
    (20.5, 0, 2),
]))
fillet.setExpression("Radius", "Params.fillet_radius")

sketch12 = body.newObject("Sketcher::SketchObject", "Sketch011")
sketch12.AttachmentSupport = (doc.getObject("XZ_Plane"), [""])
sketch12.MapMode = "FlatFace"
sketch12.AttachmentOffset = App.Placement(App.Vector(0, 0, -8), App.Rotation())
sketch12.addGeometry([
    Part.LineSegment(App.Vector(1, 1, 0), App.Vector(1, 4.3, 0)),
    Part.LineSegment(App.Vector(1, 4.3, 0), App.Vector(13, 4.3, 0)),
    Part.LineSegment(App.Vector(13, 4.3, 0), App.Vector(13, 1, 0)),
    Part.LineSegment(App.Vector(13, 1, 0), App.Vector(1, 1, 0)),
], False)
sketch12.addConstraint([
    Sketcher.Constraint("Coincident", 0, 2, 1, 1),
    Sketcher.Constraint("Coincident", 1, 2, 2, 1),
    Sketcher.Constraint("Coincident", 2, 2, 3, 1),
    Sketcher.Constraint("Coincident", 3, 2, 0, 1),
    Sketcher.Constraint("Vertical", 0),
    Sketcher.Constraint("Horizontal", 1),
    Sketcher.Constraint("Vertical", 2),
    Sketcher.Constraint("Horizontal", 3),
    Sketcher.Constraint("DistanceX", 1, 1, 1, 2, 12.0),
    Sketcher.Constraint("DistanceY", 0, 1, 0, 2, 3.3),
    Sketcher.Constraint("DistanceX", -1, 1, 0, 2, 1.0),
    Sketcher.Constraint("DistanceY", -1, 1, 2, 2, 1.0),
])
sketch12.setExpression("Constraints[8]", "Params.sketch12_width")
sketch12.setExpression("Constraints[9]", "Params.sketch12_height")
pocket9 = body.newObject("PartDesign::Pocket", "Pocket008")
pocket9.Profile = sketch12
pocket9.setExpression("Length", "Params.pocket9_length")
pocket9.Reversed = True

doc.recompute()
